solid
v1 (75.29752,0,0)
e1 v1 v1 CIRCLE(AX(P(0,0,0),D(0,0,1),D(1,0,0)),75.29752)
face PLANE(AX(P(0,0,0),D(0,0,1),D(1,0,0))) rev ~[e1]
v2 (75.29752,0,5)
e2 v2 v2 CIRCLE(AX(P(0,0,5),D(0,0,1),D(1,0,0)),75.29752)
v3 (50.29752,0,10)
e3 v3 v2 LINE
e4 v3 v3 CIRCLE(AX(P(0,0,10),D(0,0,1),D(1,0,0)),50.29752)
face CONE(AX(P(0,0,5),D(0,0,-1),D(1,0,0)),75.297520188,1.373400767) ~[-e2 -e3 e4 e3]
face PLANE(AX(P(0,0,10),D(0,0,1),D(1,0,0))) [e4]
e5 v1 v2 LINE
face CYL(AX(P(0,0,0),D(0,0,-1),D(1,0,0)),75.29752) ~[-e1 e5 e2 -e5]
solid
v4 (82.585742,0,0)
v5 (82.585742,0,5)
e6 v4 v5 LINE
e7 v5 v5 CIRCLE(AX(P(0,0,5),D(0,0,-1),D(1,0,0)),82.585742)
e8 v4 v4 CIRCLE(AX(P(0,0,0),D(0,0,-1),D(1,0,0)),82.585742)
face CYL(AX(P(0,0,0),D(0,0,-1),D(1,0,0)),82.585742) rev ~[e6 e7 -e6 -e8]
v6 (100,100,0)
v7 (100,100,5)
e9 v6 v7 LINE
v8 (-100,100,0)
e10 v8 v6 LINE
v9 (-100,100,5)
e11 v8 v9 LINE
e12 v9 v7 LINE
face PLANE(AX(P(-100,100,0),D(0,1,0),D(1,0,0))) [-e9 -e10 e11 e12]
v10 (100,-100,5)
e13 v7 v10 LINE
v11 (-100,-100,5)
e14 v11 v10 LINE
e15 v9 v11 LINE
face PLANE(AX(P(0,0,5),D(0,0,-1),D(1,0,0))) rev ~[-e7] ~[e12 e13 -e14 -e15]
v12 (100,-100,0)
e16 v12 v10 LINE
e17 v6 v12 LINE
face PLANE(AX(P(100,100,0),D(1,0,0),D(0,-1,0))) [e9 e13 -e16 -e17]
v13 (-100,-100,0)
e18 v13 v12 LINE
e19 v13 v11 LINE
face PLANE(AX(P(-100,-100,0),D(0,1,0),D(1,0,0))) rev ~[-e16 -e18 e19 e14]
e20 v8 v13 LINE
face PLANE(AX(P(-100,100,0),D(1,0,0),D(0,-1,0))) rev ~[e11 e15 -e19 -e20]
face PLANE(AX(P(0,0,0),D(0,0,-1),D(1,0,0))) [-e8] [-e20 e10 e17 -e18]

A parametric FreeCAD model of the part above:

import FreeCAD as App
import Part
import Sketcher
Q = App.Units.Quantity


def edges_at(feature, points):
    """Names of the edges that pass closest to the given points."""
    edges = feature.Shape.Edges
    near = lambda p: min(range(len(edges)), key=lambda i: edges[i].distToShape(Part.Vertex(*p))[0])
    return sorted({f"Edge{near(p) + 1}" for p in points})

doc = App.newDocument("Part")
body = doc.addObject("PartDesign::Body", "Body")

# Sketch on XY plane
sketch1 = body.newObject("Sketcher::SketchObject", "Sketch")
sketch1.AttachmentSupport = (doc.getObject("XY_Plane"), [""])
sketch1.MapMode = "FlatFace"
sketch1.addGeometry(Part.Circle(App.Vector(0, 0, 0), App.Vector(0, 0, 1), 75), False)
sketch1.addConstraint(Sketcher.Constraint("Coincident", 0, 3, -1, 1))
sketch1.addConstraint(Sketcher.Constraint("Diameter", 0, Q("150.59504 mm")))
pad1 = body.newObject("PartDesign::Pad", "Pad")
pad1.Profile = sketch1
pad1.Length = 10
doc.recompute()

chamfer = body.newObject("PartDesign::Chamfer", "Chamfer")
chamfer.Base = (pad1, edges_at(pad1, [(-75.298, 0, 10)]))
chamfer.ChamferType = "Two distances"
chamfer.Size = 25
chamfer.Size2 = 5
chamfer.FlipDirection = True
body2 = doc.addObject("PartDesign::Body", "Body001")

# Sketch on XY plane
sketch2 = body2.newObject("Sketcher::SketchObject", "Sketch001")
sketch2.AttachmentSupport = (doc.getObject("XY_Plane001"), [""])
sketch2.MapMode = "FlatFace"
sketch2.addGeometry(Part.LineSegment(App.Vector(-100, -100, 0), App.Vector(-100, 100, 0)), False)
sketch2.addGeometry(Part.LineSegment(App.Vector(-100, 100, 0), App.Vector(100, 100, 0)), False)
sketch2.addGeometry(Part.LineSegment(App.Vector(100, 100, 0), App.Vector(100, -100, 0)), False)
sketch2.addGeometry(Part.LineSegment(App.Vector(100, -100, 0), App.Vector(-100, -100, 0)), False)
sketch2.addGeometry(Part.Circle(App.Vector(0, 0, 0), App.Vector(0, 0, 1), 83), False)
sketch2.addConstraint(Sketcher.Constraint("Coincident", 0, 2, 1, 1))
sketch2.addConstraint(Sketcher.Constraint("Coincident", 1, 2, 2, 1))
sketch2.addConstraint(Sketcher.Constraint("Coincident", 2, 2, 3, 1))
sketch2.addConstraint(Sketcher.Constraint("Coincident", 3, 2, 0, 1))
sketch2.addConstraint(Sketcher.Constraint("Vertical", 0))
sketch2.addConstraint(Sketcher.Constraint("Horizontal", 1))
sketch2.addConstraint(Sketcher.Constraint("Vertical", 2))
sketch2.addConstraint(Sketcher.Constraint("Horizontal", 3))
sketch2.addConstraint(Sketcher.Constraint("Coincident", 4, 3, -1, 1))
sketch2.addConstraint(Sketcher.Constraint("Symmetric", 0, 2, 2, 2, -1, 1))
sketch2.addConstraint(Sketcher.Constraint("Equal", 3, 0))
sketch2.addConstraint(Sketcher.Constraint("DistanceX", 1, 1, 1, 2, Q("200 mm")))
sketch2.addConstraint(Sketcher.Constraint("Diameter", 4, Q("165.171485 mm")))
pad2 = body2.newObject("PartDesign::Pad", "Pad001")
pad2.Profile = sketch2
pad2.Length = 5

doc.recompute()
